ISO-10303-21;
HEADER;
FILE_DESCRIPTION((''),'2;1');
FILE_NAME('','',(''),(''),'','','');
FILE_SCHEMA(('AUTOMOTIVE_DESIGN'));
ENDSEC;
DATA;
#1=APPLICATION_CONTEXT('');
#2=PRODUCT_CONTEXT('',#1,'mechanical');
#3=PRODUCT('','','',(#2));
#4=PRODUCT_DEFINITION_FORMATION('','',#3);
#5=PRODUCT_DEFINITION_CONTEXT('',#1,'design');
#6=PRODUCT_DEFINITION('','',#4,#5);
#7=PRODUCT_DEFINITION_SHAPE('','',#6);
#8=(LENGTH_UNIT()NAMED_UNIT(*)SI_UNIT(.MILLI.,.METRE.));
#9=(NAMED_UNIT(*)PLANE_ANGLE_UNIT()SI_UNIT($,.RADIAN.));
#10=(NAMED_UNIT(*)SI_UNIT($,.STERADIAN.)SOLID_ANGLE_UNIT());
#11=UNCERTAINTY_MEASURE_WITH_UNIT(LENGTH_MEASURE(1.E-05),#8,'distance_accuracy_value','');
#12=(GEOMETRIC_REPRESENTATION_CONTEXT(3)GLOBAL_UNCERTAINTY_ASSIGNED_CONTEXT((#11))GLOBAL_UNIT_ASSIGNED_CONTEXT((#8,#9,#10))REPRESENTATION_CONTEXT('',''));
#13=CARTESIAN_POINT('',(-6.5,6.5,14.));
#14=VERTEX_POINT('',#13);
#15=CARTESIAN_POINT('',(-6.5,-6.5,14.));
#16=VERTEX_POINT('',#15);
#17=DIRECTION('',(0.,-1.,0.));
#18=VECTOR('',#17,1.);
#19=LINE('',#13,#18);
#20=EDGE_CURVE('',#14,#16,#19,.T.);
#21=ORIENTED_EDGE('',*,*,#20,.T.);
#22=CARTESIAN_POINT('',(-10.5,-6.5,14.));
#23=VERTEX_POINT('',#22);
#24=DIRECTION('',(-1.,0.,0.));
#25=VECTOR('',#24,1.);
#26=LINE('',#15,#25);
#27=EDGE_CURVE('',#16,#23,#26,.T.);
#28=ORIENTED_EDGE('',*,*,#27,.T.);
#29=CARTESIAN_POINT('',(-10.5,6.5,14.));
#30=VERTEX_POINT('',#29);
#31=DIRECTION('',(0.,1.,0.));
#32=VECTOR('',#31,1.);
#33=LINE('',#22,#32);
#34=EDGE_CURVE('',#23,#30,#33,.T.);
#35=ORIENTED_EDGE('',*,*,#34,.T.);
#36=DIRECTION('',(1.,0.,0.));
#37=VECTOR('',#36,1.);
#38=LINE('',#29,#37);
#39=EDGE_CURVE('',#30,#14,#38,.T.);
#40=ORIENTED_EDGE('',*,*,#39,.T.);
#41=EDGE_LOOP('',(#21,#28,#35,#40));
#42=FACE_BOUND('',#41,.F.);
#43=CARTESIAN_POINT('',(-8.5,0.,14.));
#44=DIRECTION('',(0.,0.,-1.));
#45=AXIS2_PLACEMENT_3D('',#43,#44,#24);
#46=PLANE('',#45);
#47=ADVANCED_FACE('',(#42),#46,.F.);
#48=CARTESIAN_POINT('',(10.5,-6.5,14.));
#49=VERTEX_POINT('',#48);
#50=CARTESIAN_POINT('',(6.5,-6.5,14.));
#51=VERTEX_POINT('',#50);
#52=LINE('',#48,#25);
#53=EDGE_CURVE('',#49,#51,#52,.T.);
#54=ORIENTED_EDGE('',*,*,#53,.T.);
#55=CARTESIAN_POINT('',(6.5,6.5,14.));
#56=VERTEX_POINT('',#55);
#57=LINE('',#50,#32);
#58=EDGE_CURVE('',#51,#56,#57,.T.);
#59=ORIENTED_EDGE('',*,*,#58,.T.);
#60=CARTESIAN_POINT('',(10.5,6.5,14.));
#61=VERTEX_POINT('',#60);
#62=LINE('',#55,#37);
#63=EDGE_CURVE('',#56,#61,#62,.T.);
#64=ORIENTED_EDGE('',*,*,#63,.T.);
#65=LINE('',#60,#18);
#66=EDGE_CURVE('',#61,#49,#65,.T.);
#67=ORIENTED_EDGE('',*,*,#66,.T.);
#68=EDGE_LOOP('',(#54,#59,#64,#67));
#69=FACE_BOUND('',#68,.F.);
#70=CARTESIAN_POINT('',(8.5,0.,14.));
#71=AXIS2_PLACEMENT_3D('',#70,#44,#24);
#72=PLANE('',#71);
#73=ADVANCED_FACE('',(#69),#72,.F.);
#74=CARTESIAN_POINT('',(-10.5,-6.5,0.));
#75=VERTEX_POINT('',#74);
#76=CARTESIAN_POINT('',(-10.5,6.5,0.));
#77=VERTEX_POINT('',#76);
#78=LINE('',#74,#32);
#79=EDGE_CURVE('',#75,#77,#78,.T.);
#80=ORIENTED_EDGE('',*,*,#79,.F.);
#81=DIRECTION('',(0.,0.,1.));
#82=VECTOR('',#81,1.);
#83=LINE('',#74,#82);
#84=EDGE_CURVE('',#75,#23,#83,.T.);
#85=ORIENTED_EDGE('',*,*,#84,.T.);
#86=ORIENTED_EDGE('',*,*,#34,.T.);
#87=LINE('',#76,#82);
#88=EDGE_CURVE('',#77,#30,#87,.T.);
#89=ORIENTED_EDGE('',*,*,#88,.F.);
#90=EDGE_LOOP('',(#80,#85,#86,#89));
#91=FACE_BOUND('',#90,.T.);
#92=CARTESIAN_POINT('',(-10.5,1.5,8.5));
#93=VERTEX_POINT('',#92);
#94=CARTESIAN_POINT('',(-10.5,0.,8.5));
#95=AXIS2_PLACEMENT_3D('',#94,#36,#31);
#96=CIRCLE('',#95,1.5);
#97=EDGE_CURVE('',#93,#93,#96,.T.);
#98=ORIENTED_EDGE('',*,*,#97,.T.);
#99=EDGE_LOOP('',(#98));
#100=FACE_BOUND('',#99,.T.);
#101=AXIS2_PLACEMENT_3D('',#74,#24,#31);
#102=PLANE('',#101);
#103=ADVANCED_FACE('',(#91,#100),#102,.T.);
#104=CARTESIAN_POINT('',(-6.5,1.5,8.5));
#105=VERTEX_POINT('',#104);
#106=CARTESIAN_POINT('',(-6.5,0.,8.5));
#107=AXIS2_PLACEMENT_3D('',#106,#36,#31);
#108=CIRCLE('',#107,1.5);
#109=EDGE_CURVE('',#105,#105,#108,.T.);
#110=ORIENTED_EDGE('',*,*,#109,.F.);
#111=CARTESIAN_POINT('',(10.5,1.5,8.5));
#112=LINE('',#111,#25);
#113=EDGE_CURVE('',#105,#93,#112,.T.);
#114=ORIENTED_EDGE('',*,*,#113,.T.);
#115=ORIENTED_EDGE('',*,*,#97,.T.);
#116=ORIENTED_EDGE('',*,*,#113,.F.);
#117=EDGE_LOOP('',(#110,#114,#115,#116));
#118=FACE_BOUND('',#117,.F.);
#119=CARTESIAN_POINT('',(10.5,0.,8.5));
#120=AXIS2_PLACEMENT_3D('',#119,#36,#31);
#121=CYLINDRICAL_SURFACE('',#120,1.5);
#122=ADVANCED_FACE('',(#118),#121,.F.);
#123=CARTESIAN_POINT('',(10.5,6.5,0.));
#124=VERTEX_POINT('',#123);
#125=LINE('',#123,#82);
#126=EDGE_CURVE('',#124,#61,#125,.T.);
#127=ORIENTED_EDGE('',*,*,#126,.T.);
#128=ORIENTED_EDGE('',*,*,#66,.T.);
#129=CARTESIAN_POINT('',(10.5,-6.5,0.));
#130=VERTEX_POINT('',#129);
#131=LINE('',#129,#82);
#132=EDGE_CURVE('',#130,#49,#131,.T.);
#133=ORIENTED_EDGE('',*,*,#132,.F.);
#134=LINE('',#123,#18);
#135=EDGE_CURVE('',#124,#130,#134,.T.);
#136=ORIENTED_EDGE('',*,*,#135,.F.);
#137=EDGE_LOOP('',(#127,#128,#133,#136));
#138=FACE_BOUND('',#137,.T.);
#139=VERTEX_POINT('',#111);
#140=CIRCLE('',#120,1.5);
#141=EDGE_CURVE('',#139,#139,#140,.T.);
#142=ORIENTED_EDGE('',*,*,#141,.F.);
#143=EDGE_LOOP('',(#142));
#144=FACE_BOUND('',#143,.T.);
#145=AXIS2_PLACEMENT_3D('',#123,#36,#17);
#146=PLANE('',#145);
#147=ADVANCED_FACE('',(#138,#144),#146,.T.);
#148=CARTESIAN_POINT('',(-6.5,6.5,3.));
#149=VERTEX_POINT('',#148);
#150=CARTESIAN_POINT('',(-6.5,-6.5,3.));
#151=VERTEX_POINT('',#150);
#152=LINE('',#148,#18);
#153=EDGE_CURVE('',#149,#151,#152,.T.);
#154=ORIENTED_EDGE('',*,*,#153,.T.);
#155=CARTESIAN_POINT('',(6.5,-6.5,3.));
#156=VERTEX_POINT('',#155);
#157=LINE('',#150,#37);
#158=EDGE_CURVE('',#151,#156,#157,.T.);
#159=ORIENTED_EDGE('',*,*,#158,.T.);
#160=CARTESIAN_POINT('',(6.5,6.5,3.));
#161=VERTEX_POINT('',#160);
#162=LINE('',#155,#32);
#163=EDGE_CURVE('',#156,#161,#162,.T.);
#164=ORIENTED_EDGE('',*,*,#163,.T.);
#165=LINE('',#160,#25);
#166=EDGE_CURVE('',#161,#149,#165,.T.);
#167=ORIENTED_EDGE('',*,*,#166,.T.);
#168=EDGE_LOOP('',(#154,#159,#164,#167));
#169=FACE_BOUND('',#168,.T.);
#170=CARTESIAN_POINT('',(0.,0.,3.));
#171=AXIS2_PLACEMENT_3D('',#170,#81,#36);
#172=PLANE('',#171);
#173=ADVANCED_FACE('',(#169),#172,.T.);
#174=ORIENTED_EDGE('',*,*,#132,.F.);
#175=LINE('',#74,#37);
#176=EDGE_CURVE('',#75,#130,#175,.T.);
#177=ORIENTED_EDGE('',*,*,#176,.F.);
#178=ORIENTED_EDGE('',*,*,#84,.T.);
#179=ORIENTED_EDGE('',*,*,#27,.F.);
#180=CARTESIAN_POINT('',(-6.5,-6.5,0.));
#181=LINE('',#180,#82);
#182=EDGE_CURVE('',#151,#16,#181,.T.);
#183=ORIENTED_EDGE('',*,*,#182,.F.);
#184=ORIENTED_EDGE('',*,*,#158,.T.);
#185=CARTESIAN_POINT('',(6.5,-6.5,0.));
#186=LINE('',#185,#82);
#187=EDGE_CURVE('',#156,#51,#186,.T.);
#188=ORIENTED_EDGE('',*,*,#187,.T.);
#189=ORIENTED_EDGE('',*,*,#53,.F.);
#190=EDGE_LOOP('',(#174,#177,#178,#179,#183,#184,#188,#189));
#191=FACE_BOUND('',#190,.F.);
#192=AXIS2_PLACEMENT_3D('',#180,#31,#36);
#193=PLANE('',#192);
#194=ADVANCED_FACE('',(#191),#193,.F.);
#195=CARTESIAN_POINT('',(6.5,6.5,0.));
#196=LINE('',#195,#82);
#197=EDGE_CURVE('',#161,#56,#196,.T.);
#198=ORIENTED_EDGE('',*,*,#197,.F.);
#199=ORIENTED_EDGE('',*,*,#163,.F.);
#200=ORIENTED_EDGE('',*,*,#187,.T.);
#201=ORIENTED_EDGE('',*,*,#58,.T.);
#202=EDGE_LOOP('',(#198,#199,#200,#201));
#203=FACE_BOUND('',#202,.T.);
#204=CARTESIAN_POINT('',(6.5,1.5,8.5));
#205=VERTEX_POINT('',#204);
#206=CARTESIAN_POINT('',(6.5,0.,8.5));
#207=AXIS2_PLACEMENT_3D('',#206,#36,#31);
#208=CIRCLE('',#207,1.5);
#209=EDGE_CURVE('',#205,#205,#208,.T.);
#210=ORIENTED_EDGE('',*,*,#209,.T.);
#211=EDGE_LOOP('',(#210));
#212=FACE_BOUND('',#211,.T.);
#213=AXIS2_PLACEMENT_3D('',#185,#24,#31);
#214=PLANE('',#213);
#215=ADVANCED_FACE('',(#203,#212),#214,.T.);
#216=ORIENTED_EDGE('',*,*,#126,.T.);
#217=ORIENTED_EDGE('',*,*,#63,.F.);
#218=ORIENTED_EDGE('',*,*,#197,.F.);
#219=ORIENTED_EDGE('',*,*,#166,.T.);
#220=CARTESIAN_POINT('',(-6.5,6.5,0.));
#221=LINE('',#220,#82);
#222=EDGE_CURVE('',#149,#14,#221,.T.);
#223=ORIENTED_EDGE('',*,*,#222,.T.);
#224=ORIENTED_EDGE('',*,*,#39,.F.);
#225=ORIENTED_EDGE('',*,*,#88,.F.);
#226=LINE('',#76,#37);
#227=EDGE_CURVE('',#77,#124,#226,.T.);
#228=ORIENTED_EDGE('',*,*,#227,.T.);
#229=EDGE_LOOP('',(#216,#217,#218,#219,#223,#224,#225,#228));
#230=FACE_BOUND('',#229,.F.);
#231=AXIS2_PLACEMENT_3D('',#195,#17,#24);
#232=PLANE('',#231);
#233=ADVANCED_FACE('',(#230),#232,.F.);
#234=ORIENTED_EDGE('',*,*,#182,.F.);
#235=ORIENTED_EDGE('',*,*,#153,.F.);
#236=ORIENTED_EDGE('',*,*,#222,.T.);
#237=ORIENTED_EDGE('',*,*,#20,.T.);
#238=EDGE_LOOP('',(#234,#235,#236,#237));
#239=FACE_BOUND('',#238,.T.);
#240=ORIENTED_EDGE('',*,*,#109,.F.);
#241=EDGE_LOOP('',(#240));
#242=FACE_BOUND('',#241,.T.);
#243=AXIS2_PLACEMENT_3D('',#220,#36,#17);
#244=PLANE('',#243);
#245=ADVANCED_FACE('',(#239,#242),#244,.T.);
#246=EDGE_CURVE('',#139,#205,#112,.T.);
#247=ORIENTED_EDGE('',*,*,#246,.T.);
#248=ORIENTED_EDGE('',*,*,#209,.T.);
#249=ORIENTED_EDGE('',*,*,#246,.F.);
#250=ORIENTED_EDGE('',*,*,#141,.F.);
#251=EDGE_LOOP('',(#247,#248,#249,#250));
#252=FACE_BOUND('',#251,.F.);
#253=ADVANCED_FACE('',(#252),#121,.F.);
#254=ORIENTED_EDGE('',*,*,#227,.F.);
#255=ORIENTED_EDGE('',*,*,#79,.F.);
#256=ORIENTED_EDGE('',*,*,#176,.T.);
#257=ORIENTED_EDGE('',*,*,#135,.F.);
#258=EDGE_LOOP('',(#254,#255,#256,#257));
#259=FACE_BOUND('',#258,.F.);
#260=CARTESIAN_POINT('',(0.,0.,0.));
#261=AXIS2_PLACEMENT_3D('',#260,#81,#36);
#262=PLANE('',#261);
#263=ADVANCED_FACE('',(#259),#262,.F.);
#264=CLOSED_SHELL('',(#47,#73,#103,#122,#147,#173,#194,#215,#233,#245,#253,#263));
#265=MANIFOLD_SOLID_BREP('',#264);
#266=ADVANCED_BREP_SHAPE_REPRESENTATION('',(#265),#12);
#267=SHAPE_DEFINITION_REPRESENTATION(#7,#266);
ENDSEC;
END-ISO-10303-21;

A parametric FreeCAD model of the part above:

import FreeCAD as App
import Part
import Sketcher
from FreeCAD import Vector

doc = App.newDocument("Part")
body = doc.addObject("PartDesign::Body", "Body")

# Sketch on XY plane
sketch1 = body.newObject("Sketcher::SketchObject", "Sketch")
sketch1.AttachmentSupport = (doc.getObject("XY_Plane"), [""])
sketch1.MapMode = "FlatFace"
sketch1.addGeometry([
    Part.LineSegment(Vector(-6, 6, 0), Vector(-6, -6, 0)),
    Part.LineSegment(Vector(-6, -6, 0), Vector(6, -6, 0)),
    Part.LineSegment(Vector(6, -6, 0), Vector(6, 6, 0)),
    Part.LineSegment(Vector(6, 6, 0), Vector(-6, 6, 0)),
], False)
sketch1.addConstraint([
    Sketcher.Constraint("Coincident", 0, 2, 1, 1),
    Sketcher.Constraint("Coincident", 1, 2, 2, 1),
    Sketcher.Constraint("Coincident", 2, 2, 3, 1),
    Sketcher.Constraint("Coincident", 3, 2, 0, 1),
    Sketcher.Constraint("Vertical", 0),
    Sketcher.Constraint("Horizontal", 1),
    Sketcher.Constraint("Vertical", 2),
    Sketcher.Constraint("Horizontal", 3),
    Sketcher.Constraint("Symmetric", 0, 2, 2, 2, -1, 1),
    Sketcher.Constraint("Equal", 3, 0),
    Sketcher.Constraint("DistanceX", 1, 1, 1, 2, 13.0),
])
pad1 = body.newObject("PartDesign::Pad", "Pad")
pad1.Profile = sketch1
pad1.Length = 3

# Sketch on XY plane
sketch2 = body.newObject("Sketcher::SketchObject", "Sketch001")
sketch2.AttachmentSupport = (doc.getObject("XY_Plane"), [""])
sketch2.MapMode = "FlatFace"
sketch2.addGeometry([
    Part.LineSegment(Vector(6.5, -6.5, 0), Vector(10.5, -6.5, 0)),  # 0
    Part.LineSegment(Vector(10.5, -6.5, 0), Vector(10.5, 6.5, 0)),  # 1
    Part.LineSegment(Vector(10.5, 6.5, 0), Vector(6.5, 6.5, 0)),  # 2
    Part.LineSegment(Vector(6.5, 6.5, 0), Vector(6.5, -6.5, 0)),  # 3
    Part.LineSegment(Vector(-10.5, -6.5, 0), Vector(-6.5, -6.5, 0)),  # 4
    Part.LineSegment(Vector(-6.5, -6.5, 0), Vector(-6.5, 6.5, 0)),  # 5
    Part.LineSegment(Vector(-6.5, 6.5, 0), Vector(-10.5, 6.5, 0)),  # 6
    Part.LineSegment(Vector(-10.5, 6.5, 0), Vector(-10.5, -6.5, 0)),  # 7
], False)
sketch2.addConstraint([
    Sketcher.Constraint("Coincident", 0, 2, 1, 1),
    Sketcher.Constraint("Coincident", 1, 2, 2, 1),
    Sketcher.Constraint("Coincident", 2, 2, 3, 1),
    Sketcher.Constraint("Coincident", 3, 2, 0, 1),
    Sketcher.Constraint("Coincident", 4, 2, 5, 1),
    Sketcher.Constraint("Coincident", 5, 2, 6, 1),
    Sketcher.Constraint("Coincident", 6, 2, 7, 1),
    Sketcher.Constraint("Coincident", 7, 2, 4, 1),
    Sketcher.Constraint("Horizontal", 0),
    Sketcher.Constraint("Vertical", 1),
    Sketcher.Constraint("Horizontal", 2),
    Sketcher.Constraint("Vertical", 3),
    Sketcher.Constraint("Horizontal", 4),
    Sketcher.Constraint("Vertical", 5),
    Sketcher.Constraint("Horizontal", 6),
    Sketcher.Constraint("Vertical", 7),
    Sketcher.Constraint("Symmetric", 2, 2, 4, 2, -1, 1),
    Sketcher.Constraint("Symmetric", 0, 2, 6, 2, -1, 1),
    Sketcher.Constraint("Horizontal", 3, 2, 4, 2),
    Sketcher.Constraint("DistanceX", 0, 1, 0, 2, 4.0),
    Sketcher.Constraint("DistanceY", 1, 1, 1, 2, 13.0),
    Sketcher.Constraint("DistanceX", 4, 2, 3, 2, 13.0),
])
pad2 = body.newObject("PartDesign::Pad", "Pad001")
pad2.Profile = sketch2
pad2.Length = 14

# Sketch on YZ plane
sketch3 = body.newObject("Sketcher::SketchObject", "Sketch002")
sketch3.AttachmentSupport = (doc.getObject("YZ_Plane"), [""])
sketch3.MapMode = "FlatFace"
sketch3.AttachmentOffset = App.Placement(Vector(0, 0, 10.5), App.Rotation())
sketch3.addGeometry(Part.Circle(Vector(0, 8.5, 0), Vector(0, 0, 1), 1.5), False)
sketch3.addConstraint([
    Sketcher.Constraint("PointOnObject", 0, 3, -2),
    Sketcher.Constraint("Diameter", 0, 3.0),
    Sketcher.Constraint("DistanceY", -1, 1, 0, 3, 8.5),
])
pocket1 = body.newObject("PartDesign::Pocket", "Pocket")
pocket1.Profile = sketch3
pocket1.Length = 39

doc.recompute()
